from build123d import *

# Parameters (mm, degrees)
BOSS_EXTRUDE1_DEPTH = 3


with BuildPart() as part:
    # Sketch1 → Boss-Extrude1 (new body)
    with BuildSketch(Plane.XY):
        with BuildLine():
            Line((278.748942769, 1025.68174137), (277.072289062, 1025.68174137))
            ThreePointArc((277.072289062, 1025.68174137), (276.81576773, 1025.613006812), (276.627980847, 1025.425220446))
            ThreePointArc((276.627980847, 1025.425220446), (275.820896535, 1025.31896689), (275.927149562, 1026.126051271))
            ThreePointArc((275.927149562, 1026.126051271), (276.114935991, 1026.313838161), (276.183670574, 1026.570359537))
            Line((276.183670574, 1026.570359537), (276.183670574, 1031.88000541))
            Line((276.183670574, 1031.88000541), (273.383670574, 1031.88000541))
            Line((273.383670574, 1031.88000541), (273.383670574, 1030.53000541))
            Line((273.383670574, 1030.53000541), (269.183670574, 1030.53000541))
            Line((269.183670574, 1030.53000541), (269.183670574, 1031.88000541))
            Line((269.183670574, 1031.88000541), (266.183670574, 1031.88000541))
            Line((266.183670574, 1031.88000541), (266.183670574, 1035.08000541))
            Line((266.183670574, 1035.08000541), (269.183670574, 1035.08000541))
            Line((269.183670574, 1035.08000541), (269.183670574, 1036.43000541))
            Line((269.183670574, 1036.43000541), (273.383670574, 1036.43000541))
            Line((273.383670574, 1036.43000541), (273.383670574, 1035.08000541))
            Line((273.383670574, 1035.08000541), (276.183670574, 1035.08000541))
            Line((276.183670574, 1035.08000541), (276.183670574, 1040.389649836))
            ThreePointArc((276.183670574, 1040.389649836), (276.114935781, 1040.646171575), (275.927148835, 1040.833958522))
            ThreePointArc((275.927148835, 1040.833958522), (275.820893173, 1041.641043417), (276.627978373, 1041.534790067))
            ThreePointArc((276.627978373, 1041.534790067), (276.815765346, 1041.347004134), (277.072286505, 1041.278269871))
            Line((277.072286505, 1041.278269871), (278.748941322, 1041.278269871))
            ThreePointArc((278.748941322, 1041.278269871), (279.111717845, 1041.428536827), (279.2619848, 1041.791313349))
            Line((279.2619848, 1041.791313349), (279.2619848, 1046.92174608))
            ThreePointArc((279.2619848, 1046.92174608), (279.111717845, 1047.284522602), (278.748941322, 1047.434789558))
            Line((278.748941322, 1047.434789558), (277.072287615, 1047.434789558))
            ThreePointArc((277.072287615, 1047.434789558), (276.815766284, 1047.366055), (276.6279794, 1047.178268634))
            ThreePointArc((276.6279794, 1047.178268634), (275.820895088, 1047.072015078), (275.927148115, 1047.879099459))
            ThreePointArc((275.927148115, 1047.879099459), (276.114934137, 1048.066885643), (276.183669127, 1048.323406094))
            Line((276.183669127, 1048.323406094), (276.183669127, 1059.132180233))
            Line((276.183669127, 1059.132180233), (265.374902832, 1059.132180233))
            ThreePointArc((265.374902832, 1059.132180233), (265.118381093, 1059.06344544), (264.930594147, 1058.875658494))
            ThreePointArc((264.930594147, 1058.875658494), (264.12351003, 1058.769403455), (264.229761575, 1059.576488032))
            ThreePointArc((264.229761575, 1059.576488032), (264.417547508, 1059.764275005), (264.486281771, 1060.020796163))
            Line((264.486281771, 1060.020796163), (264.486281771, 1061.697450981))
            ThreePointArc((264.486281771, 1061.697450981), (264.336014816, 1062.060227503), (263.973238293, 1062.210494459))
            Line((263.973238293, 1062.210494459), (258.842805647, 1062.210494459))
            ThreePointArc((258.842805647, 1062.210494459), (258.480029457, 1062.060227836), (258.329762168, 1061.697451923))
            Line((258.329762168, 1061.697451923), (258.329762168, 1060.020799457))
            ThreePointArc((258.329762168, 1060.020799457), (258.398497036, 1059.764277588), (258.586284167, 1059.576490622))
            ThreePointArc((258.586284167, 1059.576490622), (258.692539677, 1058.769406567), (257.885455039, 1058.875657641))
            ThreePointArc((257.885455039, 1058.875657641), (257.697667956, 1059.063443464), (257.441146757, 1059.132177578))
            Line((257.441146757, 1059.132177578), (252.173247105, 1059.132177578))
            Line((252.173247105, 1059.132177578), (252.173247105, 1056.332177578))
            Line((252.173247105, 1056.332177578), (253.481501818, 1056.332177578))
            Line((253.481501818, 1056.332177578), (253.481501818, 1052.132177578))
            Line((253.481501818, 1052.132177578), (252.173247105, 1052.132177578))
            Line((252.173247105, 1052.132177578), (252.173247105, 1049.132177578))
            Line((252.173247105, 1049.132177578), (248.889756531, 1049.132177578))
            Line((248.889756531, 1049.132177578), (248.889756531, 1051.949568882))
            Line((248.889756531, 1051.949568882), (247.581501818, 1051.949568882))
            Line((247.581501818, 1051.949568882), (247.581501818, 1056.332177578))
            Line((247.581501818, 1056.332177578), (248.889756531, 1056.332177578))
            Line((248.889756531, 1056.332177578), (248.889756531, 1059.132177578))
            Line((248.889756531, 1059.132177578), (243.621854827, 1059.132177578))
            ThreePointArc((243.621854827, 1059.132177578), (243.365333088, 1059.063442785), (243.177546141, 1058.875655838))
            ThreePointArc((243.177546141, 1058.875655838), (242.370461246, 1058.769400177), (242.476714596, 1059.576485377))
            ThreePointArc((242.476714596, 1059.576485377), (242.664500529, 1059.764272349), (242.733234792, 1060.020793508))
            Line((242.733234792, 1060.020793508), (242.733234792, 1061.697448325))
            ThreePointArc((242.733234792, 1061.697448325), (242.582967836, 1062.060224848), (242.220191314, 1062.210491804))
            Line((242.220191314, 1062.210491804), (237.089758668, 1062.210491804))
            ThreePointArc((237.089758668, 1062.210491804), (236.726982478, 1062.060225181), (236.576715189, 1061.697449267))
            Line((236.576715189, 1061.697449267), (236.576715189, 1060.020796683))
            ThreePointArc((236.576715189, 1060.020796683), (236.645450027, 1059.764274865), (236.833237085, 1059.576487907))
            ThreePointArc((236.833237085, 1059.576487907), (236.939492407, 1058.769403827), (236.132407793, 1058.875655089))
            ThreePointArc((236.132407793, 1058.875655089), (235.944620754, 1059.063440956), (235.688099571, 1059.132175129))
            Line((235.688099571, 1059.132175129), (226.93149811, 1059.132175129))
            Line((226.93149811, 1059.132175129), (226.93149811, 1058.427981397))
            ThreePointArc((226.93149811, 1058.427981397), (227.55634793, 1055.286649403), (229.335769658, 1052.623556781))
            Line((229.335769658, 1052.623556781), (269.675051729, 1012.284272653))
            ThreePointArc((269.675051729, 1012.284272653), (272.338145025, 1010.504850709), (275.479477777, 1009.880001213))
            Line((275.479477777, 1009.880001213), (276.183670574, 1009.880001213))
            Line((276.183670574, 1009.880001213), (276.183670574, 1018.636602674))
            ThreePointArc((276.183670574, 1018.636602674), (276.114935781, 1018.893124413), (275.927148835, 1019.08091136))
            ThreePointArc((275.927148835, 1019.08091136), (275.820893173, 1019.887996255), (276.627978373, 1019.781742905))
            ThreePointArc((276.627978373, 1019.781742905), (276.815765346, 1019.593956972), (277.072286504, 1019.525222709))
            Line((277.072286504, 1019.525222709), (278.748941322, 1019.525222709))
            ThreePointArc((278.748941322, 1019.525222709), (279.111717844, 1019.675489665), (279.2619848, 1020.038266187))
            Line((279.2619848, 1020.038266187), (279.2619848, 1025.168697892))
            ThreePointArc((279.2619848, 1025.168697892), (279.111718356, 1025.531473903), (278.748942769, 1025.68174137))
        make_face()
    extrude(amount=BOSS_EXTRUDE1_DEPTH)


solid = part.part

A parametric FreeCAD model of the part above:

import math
import FreeCAD as App
import Part
import Sketcher
from FreeCAD import Vector

doc = App.newDocument("Part")
body = doc.addObject("PartDesign::Body", "Body")

sketch1 = doc.addObject("Sketcher::SketchObject", "Sketch")
body.addObject(sketch1)
sketch1.AttachmentSupport = (doc.XY_Plane, [""])
sketch1.MapMode = "FlatFace"
sketch1.addGeometry([
    Part.LineSegment(Vector(278.748943, 1025.681741, 0), Vector(277.072289, 1025.681741, 0)),
    Part.ArcOfCircle(Part.Circle(Vector(277.072289, 1025.168698, 0), Vector(0, 0, 1), 0.513043), math.radians(90), math.radians(149.999895)),
    Part.ArcOfCircle(Part.Circle(Vector(276.183673, 1025.681744, 0), Vector(0, 0, 1), 0.513043), math.radians(120.000211), math.radians(329.999826)),
    Part.ArcOfCircle(Part.Circle(Vector(275.670627, 1026.57036, 0), Vector(0, 0, 1), 0.513043), math.radians(-59.999906), math.radians(0)),
    Part.LineSegment(Vector(276.183671, 1026.57036, 0), Vector(276.183671, 1031.880005, 0)),
    Part.LineSegment(Vector(276.183671, 1031.880005, 0), Vector(273.383671, 1031.880005, 0)),
    Part.LineSegment(Vector(273.383671, 1031.880005, 0), Vector(273.383671, 1030.530005, 0)),
    Part.LineSegment(Vector(273.383671, 1030.530005, 0), Vector(269.183671, 1030.530005, 0)),
    Part.LineSegment(Vector(269.183671, 1030.530005, 0), Vector(269.183671, 1031.880005, 0)),
    Part.LineSegment(Vector(269.183671, 1031.880005, 0), Vector(266.183671, 1031.880005, 0)),
    Part.LineSegment(Vector(266.183671, 1031.880005, 0), Vector(266.183671, 1035.080005, 0)),
    Part.LineSegment(Vector(266.183671, 1035.080005, 0), Vector(269.183671, 1035.080005, 0)),
    Part.LineSegment(Vector(269.183671, 1035.080005, 0), Vector(269.183671, 1036.430005, 0)),
    Part.LineSegment(Vector(269.183671, 1036.430005, 0), Vector(273.383671, 1036.430005, 0)),
    Part.LineSegment(Vector(273.383671, 1036.430005, 0), Vector(273.383671, 1035.080005, 0)),
    Part.LineSegment(Vector(273.383671, 1035.080005, 0), Vector(276.183671, 1035.080005, 0)),
    Part.LineSegment(Vector(276.183671, 1035.080005, 0), Vector(276.183671, 1040.38965, 0)),
    Part.ArcOfCircle(Part.Circle(Vector(275.670627, 1040.38965, 0), Vector(0, 0, 1), 0.513043), math.radians(0), math.radians(60)),
    Part.ArcOfCircle(Part.Circle(Vector(276.18367, 1041.278267, 0), Vector(0, 0, 1), 0.513043), math.radians(30.000118), math.radians(240.000046)),
    Part.ArcOfCircle(Part.Circle(Vector(277.072286, 1041.791313, 0), Vector(0, 0, 1), 0.513043), math.radians(-149.999801), math.radians(-89.999962)),
    Part.LineSegment(Vector(277.072287, 1041.27827, 0), Vector(278.748941, 1041.27827, 0)),
    Part.ArcOfCircle(Part.Circle(Vector(278.748941, 1041.791313, 0), Vector(0, 0, 1), 0.513043), math.radians(-90), math.radians(0)),
    Part.LineSegment(Vector(279.261985, 1041.791313, 0), Vector(279.261985, 1046.921746, 0)),
    Part.ArcOfCircle(Part.Circle(Vector(278.748941, 1046.921746, 0), Vector(0, 0, 1), 0.513043), math.radians(0), math.radians(90)),
    Part.LineSegment(Vector(278.748941, 1047.43479, 0), Vector(277.072288, 1047.43479, 0)),
    Part.ArcOfCircle(Part.Circle(Vector(277.072288, 1046.921746, 0), Vector(0, 0, 1), 0.513043), math.radians(90), math.radians(149.999895)),
    Part.ArcOfCircle(Part.Circle(Vector(276.183671, 1047.434792, 0), Vector(0, 0, 1), 0.513043), math.radians(120.000211), math.radians(329.999826)),
    Part.ArcOfCircle(Part.Circle(Vector(275.670626, 1048.323408, 0), Vector(0, 0, 1), 0.513043), math.radians(-59.999906), math.radians(-0.000182)),
    Part.LineSegment(Vector(276.183669, 1048.323406, 0), Vector(276.183669, 1059.13218, 0)),
    Part.LineSegment(Vector(276.183669, 1059.13218, 0), Vector(265.374903, 1059.13218, 0)),
    Part.ArcOfCircle(Part.Circle(Vector(265.374903, 1058.619137, 0), Vector(0, 0, 1), 0.513043), math.radians(90), math.radians(150)),
    Part.ArcOfCircle(Part.Circle(Vector(264.486286, 1059.132181, 0), Vector(0, 0, 1), 0.513043), math.radians(120.000316), math.radians(329.999932)),
    Part.ArcOfCircle(Part.Circle(Vector(263.973238, 1060.020796, 0), Vector(0, 0, 1), 0.513043), math.radians(-59.999801), math.radians(0.000038)),
    Part.LineSegment(Vector(264.486282, 1060.020796, 0), Vector(264.486282, 1061.697451, 0)),
    Part.ArcOfCircle(Part.Circle(Vector(263.973238, 1061.697451, 0), Vector(0, 0, 1), 0.513043), math.radians(0), math.radians(90)),
    Part.LineSegment(Vector(263.973238, 1062.210494, 0), Vector(258.842806, 1062.210494, 0)),
    Part.ArcOfCircle(Part.Circle(Vector(258.842806, 1061.697451, 0), Vector(0, 0, 1), 0.513043), math.radians(90), math.radians(179.999895)),
    Part.LineSegment(Vector(258.329762, 1061.697452, 0), Vector(258.329762, 1060.020799, 0)),
    Part.ArcOfCircle(Part.Circle(Vector(258.842806, 1060.020799, 0), Vector(0, 0, 1), 0.513043), math.radians(180), math.radians(240.000034)),
    Part.ArcOfCircle(Part.Circle(Vector(258.329762, 1059.132182, 0), Vector(0, 0, 1), 0.513043), math.radians(-149.99965), math.radians(59.999965)),
    Part.ArcOfCircle(Part.Circle(Vector(257.441147, 1058.619134, 0), Vector(0, 0, 1), 0.513043), math.radians(30.000233), math.radians(90.000071)),
    Part.LineSegment(Vector(257.441147, 1059.132178, 0), Vector(252.173247, 1059.132178, 0)),
    Part.LineSegment(Vector(252.173247, 1059.132178, 0), Vector(252.173247, 1056.332178, 0)),
    Part.LineSegment(Vector(252.173247, 1056.332178, 0), Vector(253.481502, 1056.332178, 0)),
    Part.LineSegment(Vector(253.481502, 1056.332178, 0), Vector(253.481502, 1052.132178, 0)),
    Part.LineSegment(Vector(253.481502, 1052.132178, 0), Vector(252.173247, 1052.132178, 0)),
    Part.LineSegment(Vector(252.173247, 1052.132178, 0), Vector(252.173247, 1049.132178, 0)),
    Part.LineSegment(Vector(252.173247, 1049.132178, 0), Vector(248.889757, 1049.132178, 0)),
    Part.LineSegment(Vector(248.889757, 1049.132178, 0), Vector(248.889757, 1051.949569, 0)),
    Part.LineSegment(Vector(248.889757, 1051.949569, 0), Vector(247.581502, 1051.949569, 0)),
    Part.LineSegment(Vector(247.581502, 1051.949569, 0), Vector(247.581502, 1056.332178, 0)),
    Part.LineSegment(Vector(247.581502, 1056.332178, 0), Vector(248.889757, 1056.332178, 0)),
    Part.LineSegment(Vector(248.889757, 1056.332178, 0), Vector(248.889757, 1059.132178, 0)),
    Part.LineSegment(Vector(248.889757, 1059.132178, 0), Vector(243.621855, 1059.132178, 0)),
    Part.ArcOfCircle(Part.Circle(Vector(243.621855, 1058.619134, 0), Vector(0, 0, 1), 0.513043), math.radians(90), math.radians(150)),
    Part.ArcOfCircle(Part.Circle(Vector(242.733237, 1059.132177, 0), Vector(0, 0, 1), 0.513043), math.radians(120.000118), math.radians(330.000046)),
    Part.ArcOfCircle(Part.Circle(Vector(242.220191, 1060.020793, 0), Vector(0, 0, 1), 0.513043), math.radians(-59.999801), math.radians(0.000038)),
    Part.LineSegment(Vector(242.733235, 1060.020794, 0), Vector(242.733235, 1061.697448, 0)),
    Part.ArcOfCircle(Part.Circle(Vector(242.220191, 1061.697448, 0), Vector(0, 0, 1), 0.513043), math.radians(0), math.radians(90)),
    Part.LineSegment(Vector(242.220191, 1062.210492, 0), Vector(237.089759, 1062.210492, 0)),
    Part.ArcOfCircle(Part.Circle(Vector(237.089759, 1061.697448, 0), Vector(0, 0, 1), 0.513043), math.radians(90), math.radians(179.999895)),
    Part.LineSegment(Vector(236.576715, 1061.697449, 0), Vector(236.576715, 1060.020797, 0)),
    Part.ArcOfCircle(Part.Circle(Vector(237.089759, 1060.020797, 0), Vector(0, 0, 1), 0.513043), math.radians(180), math.radians(240.00002)),
    Part.ArcOfCircle(Part.Circle(Vector(236.576715, 1059.132179, 0), Vector(0, 0, 1), 0.513043), math.radians(-149.999664), math.radians(59.999952)),
    Part.ArcOfCircle(Part.Circle(Vector(235.6881, 1058.619132, 0), Vector(0, 0, 1), 0.513043), math.radians(30.000219), math.radians(90.000058)),
    Part.LineSegment(Vector(235.6881, 1059.132175, 0), Vector(226.931498, 1059.132175, 0)),
    Part.LineSegment(Vector(226.931498, 1059.132175, 0), Vector(226.931498, 1058.427981, 0)),
    Part.ArcOfCircle(Part.Circle(Vector(235.140194, 1058.427981, 0), Vector(0, 0, 1), 8.208696), math.radians(-180), math.radians(-134.999997)),
    Part.LineSegment(Vector(229.33577, 1052.623557, 0), Vector(269.675052, 1012.284273, 0)),
    Part.ArcOfCircle(Part.Circle(Vector(275.479476, 1018.088697, 0), Vector(0, 0, 1), 8.208696), math.radians(-135.000001), math.radians(-89.999989)),
    Part.LineSegment(Vector(275.479478, 1009.880001, 0), Vector(276.183671, 1009.880001, 0)),
    Part.LineSegment(Vector(276.183671, 1009.880001, 0), Vector(276.183671, 1018.636603, 0)),
    Part.ArcOfCircle(Part.Circle(Vector(275.670627, 1018.636603, 0), Vector(0, 0, 1), 0.513043), math.radians(0), math.radians(60)),
    Part.ArcOfCircle(Part.Circle(Vector(276.18367, 1019.52522, 0), Vector(0, 0, 1), 0.513043), math.radians(30.000118), math.radians(240.000046)),
    Part.ArcOfCircle(Part.Circle(Vector(277.072286, 1020.038266, 0), Vector(0, 0, 1), 0.513043), math.radians(-149.999801), math.radians(-89.999962)),
    Part.LineSegment(Vector(277.072287, 1019.525223, 0), Vector(278.748941, 1019.525223, 0)),
    Part.ArcOfCircle(Part.Circle(Vector(278.748941, 1020.038266, 0), Vector(0, 0, 1), 0.513043), math.radians(-90), math.radians(0)),
    Part.LineSegment(Vector(279.261985, 1020.038266, 0), Vector(279.261985, 1025.168698, 0)),
    Part.ArcOfCircle(Part.Circle(Vector(278.748941, 1025.168698, 0), Vector(0, 0, 1), 0.513043), math.radians(0), math.radians(89.999839)),
], False)
sketch1.addConstraint([
    Sketcher.Constraint("Coincident", 0, 2, 1, 1),
    Sketcher.Constraint("Coincident", 1, 2, 2, 2),
    Sketcher.Constraint("Coincident", 2, 1, 3, 1),
    Sketcher.Constraint("Coincident", 3, 2, 4, 1),
    Sketcher.Constraint("Coincident", 4, 2, 5, 1),
    Sketcher.Constraint("Coincident", 5, 2, 6, 1),
    Sketcher.Constraint("Coincident", 6, 2, 7, 1),
    Sketcher.Constraint("Coincident", 7, 2, 8, 1),
    Sketcher.Constraint("Coincident", 8, 2, 9, 1),
    Sketcher.Constraint("Coincident", 9, 2, 10, 1),
    Sketcher.Constraint("Coincident", 10, 2, 11, 1),
    Sketcher.Constraint("Coincident", 11, 2, 12, 1),
    Sketcher.Constraint("Coincident", 12, 2, 13, 1),
    Sketcher.Constraint("Coincident", 13, 2, 14, 1),
    Sketcher.Constraint("Coincident", 14, 2, 15, 1),
    Sketcher.Constraint("Coincident", 15, 2, 16, 1),
    Sketcher.Constraint("Coincident", 16, 2, 17, 1),
    Sketcher.Constraint("Coincident", 17, 2, 18, 2),
    Sketcher.Constraint("Coincident", 18, 1, 19, 1),
    Sketcher.Constraint("Coincident", 19, 2, 20, 1),
    Sketcher.Constraint("Coincident", 20, 2, 21, 1),
    Sketcher.Constraint("Coincident", 21, 2, 22, 1),
    Sketcher.Constraint("Coincident", 22, 2, 23, 1),
    Sketcher.Constraint("Coincident", 23, 2, 24, 1),
    Sketcher.Constraint("Coincident", 24, 2, 25, 1),
    Sketcher.Constraint("Coincident", 25, 2, 26, 2),
    Sketcher.Constraint("Coincident", 26, 1, 27, 1),
    Sketcher.Constraint("Coincident", 27, 2, 28, 1),
    Sketcher.Constraint("Coincident", 28, 2, 29, 1),
    Sketcher.Constraint("Coincident", 29, 2, 30, 1),
    Sketcher.Constraint("Coincident", 30, 2, 31, 2),
    Sketcher.Constraint("Coincident", 31, 1, 32, 1),
    Sketcher.Constraint("Coincident", 32, 2, 33, 1),
    Sketcher.Constraint("Coincident", 33, 2, 34, 1),
    Sketcher.Constraint("Coincident", 34, 2, 35, 1),
    Sketcher.Constraint("Coincident", 35, 2, 36, 1),
    Sketcher.Constraint("Coincident", 36, 2, 37, 1),
    Sketcher.Constraint("Coincident", 37, 2, 38, 1),
    Sketcher.Constraint("Coincident", 38, 2, 39, 2),
    Sketcher.Constraint("Coincident", 39, 1, 40, 1),
    Sketcher.Constraint("Coincident", 40, 2, 41, 1),
    Sketcher.Constraint("Coincident", 41, 2, 42, 1),
    Sketcher.Constraint("Coincident", 42, 2, 43, 1),
    Sketcher.Constraint("Coincident", 43, 2, 44, 1),
    Sketcher.Constraint("Coincident", 44, 2, 45, 1),
    Sketcher.Constraint("Coincident", 45, 2, 46, 1),
    Sketcher.Constraint("Coincident", 46, 2, 47, 1),
    Sketcher.Constraint("Coincident", 47, 2, 48, 1),
    Sketcher.Constraint("Coincident", 48, 2, 49, 1),
    Sketcher.Constraint("Coincident", 49, 2, 50, 1),
    Sketcher.Constraint("Coincident", 50, 2, 51, 1),
    Sketcher.Constraint("Coincident", 51, 2, 52, 1),
    Sketcher.Constraint("Coincident", 52, 2, 53, 1),
    Sketcher.Constraint("Coincident", 53, 2, 54, 1),
    Sketcher.Constraint("Coincident", 54, 2, 55, 2),
    Sketcher.Constraint("Coincident", 55, 1, 56, 1),
    Sketcher.Constraint("Coincident", 56, 2, 57, 1),
    Sketcher.Constraint("Coincident", 57, 2, 58, 1),
    Sketcher.Constraint("Coincident", 58, 2, 59, 1),
    Sketcher.Constraint("Coincident", 59, 2, 60, 1),
    Sketcher.Constraint("Coincident", 60, 2, 61, 1),
    Sketcher.Constraint("Coincident", 61, 2, 62, 1),
    Sketcher.Constraint("Coincident", 62, 2, 63, 2),
    Sketcher.Constraint("Coincident", 63, 1, 64, 1),
    Sketcher.Constraint("Coincident", 64, 2, 65, 1),
    Sketcher.Constraint("Coincident", 65, 2, 66, 1),
    Sketcher.Constraint("Coincident", 66, 2, 67, 1),
    Sketcher.Constraint("Coincident", 67, 2, 68, 1),
    Sketcher.Constraint("Coincident", 68, 2, 69, 1),
    Sketcher.Constraint("Coincident", 69, 2, 70, 1),
    Sketcher.Constraint("Coincident", 70, 2, 71, 1),
    Sketcher.Constraint("Coincident", 71, 2, 72, 1),
    Sketcher.Constraint("Coincident", 72, 2, 73, 2),
    Sketcher.Constraint("Coincident", 73, 1, 74, 1),
    Sketcher.Constraint("Coincident", 74, 2, 75, 1),
    Sketcher.Constraint("Coincident", 75, 2, 76, 1),
    Sketcher.Constraint("Coincident", 76, 2, 77, 1),
    Sketcher.Constraint("Coincident", 77, 2, 78, 1),
    Sketcher.Constraint("Coincident", 78, 2, 0, 1),
    Sketcher.Constraint("Horizontal", 0),
    Sketcher.Constraint("Vertical", 4),
    Sketcher.Constraint("Horizontal", 5),
    Sketcher.Constraint("Vertical", 6),
    Sketcher.Constraint("Horizontal", 7),
    Sketcher.Constraint("Vertical", 8),
    Sketcher.Constraint("Horizontal", 9),
    Sketcher.Constraint("Vertical", 10),
    Sketcher.Constraint("Horizontal", 11),
    Sketcher.Constraint("Vertical", 12),
    Sketcher.Constraint("Horizontal", 13),
    Sketcher.Constraint("Vertical", 14),
    Sketcher.Constraint("Horizontal", 15),
    Sketcher.Constraint("Vertical", 16),
    Sketcher.Constraint("Horizontal", 20),
    Sketcher.Constraint("Vertical", 22),
    Sketcher.Constraint("Horizontal", 24),
    Sketcher.Constraint("Vertical", 28),
    Sketcher.Constraint("Horizontal", 29),
    Sketcher.Constraint("Vertical", 33),
    Sketcher.Constraint("Horizontal", 35),
    Sketcher.Constraint("Vertical", 37),
    Sketcher.Constraint("Horizontal", 41),
    Sketcher.Constraint("Vertical", 42),
    Sketcher.Constraint("Horizontal", 43),
    Sketcher.Constraint("Vertical", 44),
    Sketcher.Constraint("Horizontal", 45),
    Sketcher.Constraint("Vertical", 46),
    Sketcher.Constraint("Horizontal", 47),
    Sketcher.Constraint("Vertical", 48),
    Sketcher.Constraint("Horizontal", 49),
    Sketcher.Constraint("Vertical", 50),
    Sketcher.Constraint("Horizontal", 51),
    Sketcher.Constraint("Vertical", 52),
    Sketcher.Constraint("Horizontal", 53),
    Sketcher.Constraint("Vertical", 57),
    Sketcher.Constraint("Horizontal", 59),
    Sketcher.Constraint("Vertical", 61),
    Sketcher.Constraint("Horizontal", 65),
    Sketcher.Constraint("Vertical", 66),
    Sketcher.Constraint("Horizontal", 70),
    Sketcher.Constraint("Vertical", 71),
    Sketcher.Constraint("Horizontal", 75),
    Sketcher.Constraint("Vertical", 77),
    Sketcher.Constraint("DistanceX", 9, 2, 9, 1, 3.0),
    Sketcher.Constraint("DistanceX", 11, 1, 11, 2, 3.0),
    Sketcher.Constraint("DistanceY", 46, 2, 46, 1, 3.0),
    Sketcher.Constraint("DistanceX", 5, 2, 5, 1, 2.8),
    Sketcher.Constraint("DistanceX", 7, 2, 7, 1, 4.2),
    Sketcher.Constraint("DistanceX", 13, 1, 13, 2, 4.2),
    Sketcher.Constraint("DistanceX", 15, 1, 15, 2, 2.8),
    Sketcher.Constraint("DistanceY", 10, 1, 10, 2, 3.2),
    Sketcher.Constraint("DistanceY", 42, 2, 42, 1, 2.8),
    Sketcher.Constraint("DistanceY", 44, 2, 44, 1, 4.2),
    Sketcher.Constraint("DistanceY", 52, 1, 52, 2, 2.8),
    Sketcher.Constraint("DistanceY", 6, 2, 6, 1, 1.35),
    Sketcher.Constraint("DistanceY", 8, 1, 8, 2, 1.35),
    Sketcher.Constraint("DistanceY", 12, 1, 12, 2, 1.35),
    Sketcher.Constraint("DistanceY", 14, 2, 14, 1, 1.35),
    Sketcher.Constraint("DistanceY", -1, 1, 69, 2, 1009.880001),
    Sketcher.Constraint("DistanceX", 41, 2, 41, 1, 5.2679),
    Sketcher.Constraint("DistanceX", 53, 2, 53, 1, 5.267902),
    Sketcher.Constraint("DistanceX", 65, 2, 65, 1, 8.756601),
    Sketcher.Constraint("DistanceY", 71, 1, 71, 2, 8.756601),
    Sketcher.Constraint("Radius", 1, 0.513043),
    Sketcher.Constraint("Radius", 2, 0.513043),
    Sketcher.Constraint("Radius", 3, 0.513043),
    Sketcher.Constraint("Radius", 17, 0.513043),
    Sketcher.Constraint("Radius", 18, 0.513043),
    Sketcher.Constraint("Radius", 19, 0.513043),
    Sketcher.Constraint("Radius", 21, 0.513043),
    Sketcher.Constraint("Radius", 23, 0.513043),
    Sketcher.Constraint("Radius", 25, 0.513043),
    Sketcher.Constraint("Radius", 26, 0.513043),
    Sketcher.Constraint("Radius", 27, 0.513043),
    Sketcher.Constraint("Radius", 30, 0.513043),
    Sketcher.Constraint("Radius", 31, 0.513043),
    Sketcher.Constraint("Radius", 32, 0.513043),
    Sketcher.Constraint("Radius", 34, 0.513043),
    Sketcher.Constraint("Radius", 36, 0.513043),
    Sketcher.Constraint("Radius", 38, 0.513043),
    Sketcher.Constraint("Radius", 39, 0.513043),
    Sketcher.Constraint("Radius", 40, 0.513043),
    Sketcher.Constraint("Radius", 54, 0.513043),
    Sketcher.Constraint("Radius", 55, 0.513043),
    Sketcher.Constraint("Radius", 56, 0.513043),
    Sketcher.Constraint("Radius", 58, 0.513043),
    Sketcher.Constraint("Radius", 60, 0.513043),
    Sketcher.Constraint("Radius", 62, 0.513043),
    Sketcher.Constraint("Radius", 63, 0.513043),
    Sketcher.Constraint("Radius", 64, 0.513043),
    Sketcher.Constraint("Radius", 67, 8.208696),
    Sketcher.Constraint("Radius", 69, 8.208696),
    Sketcher.Constraint("Radius", 72, 0.513043),
    Sketcher.Constraint("Radius", 73, 0.513043),
    Sketcher.Constraint("Radius", 74, 0.513043),
    Sketcher.Constraint("Radius", 76, 0.513043),
    Sketcher.Constraint("Radius", 78, 0.513043),
    Sketcher.Constraint("DistanceX", 47, 2, 47, 1, 3.283491),
    Sketcher.Constraint("DistanceY", 48, 1, 48, 2, 2.817391),
    Sketcher.Constraint("DistanceY", 50, 1, 50, 2, 4.382609),
    Sketcher.Constraint("DistanceY", 77, 1, 77, 2, 5.130432),
    Sketcher.Constraint("DistanceY", -1, 1, 38, 3, 1060.020799),
    Sketcher.Constraint("DistanceX", -1, 1, 64, 3, 235.6881),
    Sketcher.Constraint("DistanceY", -1, 1, 26, 1, 1047.879099),
    Sketcher.Constraint("DistanceY", -1, 1, 37, 2, 1060.020799),
    Sketcher.Constraint("DistanceX", -1, 1, 43, 2, 253.481502),
    Sketcher.Constraint("DistanceX", -1, 1, 49, 2, 247.581502),
    Sketcher.Constraint("DistanceX", -1, 1, 64, 2, 235.6881),
    Sketcher.Constraint("Distance", 68, 57.048361),
    Sketcher.Constraint("DistanceX", 0, 2, 0, 1, 1.676654),
    Sketcher.Constraint("DistanceX", 20, 1, 20, 2, 1.676655),
    Sketcher.Constraint("DistanceX", 24, 2, 24, 1, 1.676654),
    Sketcher.Constraint("DistanceX", 29, 2, 29, 1, 10.808766),
    Sketcher.Constraint("DistanceX", 35, 2, 35, 1, 5.130433),
    Sketcher.Constraint("DistanceX", 43, 1, 43, 2, 1.308255),
    Sketcher.Constraint("DistanceX", 45, 2, 45, 1, 1.308255),
    Sketcher.Constraint("DistanceX", 51, 1, 51, 2, 1.308255),
    Sketcher.Constraint("DistanceX", 59, 2, 59, 1, 5.130433),
    Sketcher.Constraint("DistanceX", 70, 1, 70, 2, 0.704193),
    Sketcher.Constraint("DistanceX", 75, 1, 75, 2, 1.676655),
    Sketcher.Constraint("DistanceY", 4, 1, 4, 2, 5.309646),
    Sketcher.Constraint("DistanceY", 16, 1, 16, 2, 5.309644),
    Sketcher.Constraint("DistanceY", 22, 1, 22, 2, 5.130433),
    Sketcher.Constraint("DistanceY", 28, 1, 28, 2, 10.808774),
    Sketcher.Constraint("DistanceY", 33, 1, 33, 2, 1.676655),
    Sketcher.Constraint("DistanceY", 37, 2, 37, 1, 1.676652),
    Sketcher.Constraint("DistanceY", 57, 1, 57, 2, 1.676655),
    Sketcher.Constraint("DistanceY", 61, 2, 61, 1, 1.676653),
    Sketcher.Constraint("DistanceY", 66, 2, 66, 1, 0.704194),
    Sketcher.Constraint("DistanceX", -1, 1, 1, 3, 277.072289),
    Sketcher.Constraint("DistanceY", -1, 1, 3, 3, 1026.57036),
    Sketcher.Constraint("DistanceY", -1, 1, 17, 3, 1040.38965),
    Sketcher.Constraint("DistanceX", -1, 1, 18, 3, 276.18367),
    Sketcher.Constraint("DistanceX", -1, 1, 21, 3, 278.748941),
    Sketcher.Constraint("DistanceX", -1, 1, 26, 3, 276.183671),
    Sketcher.Constraint("DistanceY", -1, 1, 26, 3, 1047.434792),
    Sketcher.Constraint("DistanceY", -1, 1, 31, 3, 1059.132181),
    Sketcher.Constraint("DistanceX", -1, 1, 32, 3, 263.973238),
    Sketcher.Constraint("DistanceY", -1, 1, 34, 3, 1061.697451),
    Sketcher.Constraint("DistanceX", -1, 1, 56, 3, 242.220191),
    Sketcher.Constraint("DistanceY", -1, 1, 58, 3, 1061.697448),
    Sketcher.Constraint("DistanceX", -1, 1, 60, 3, 237.089759),
    Sketcher.Constraint("DistanceY", -1, 1, 63, 3, 1059.132179),
    Sketcher.Constraint("DistanceY", -1, 1, 64, 3, 1058.619132),
    Sketcher.Constraint("DistanceY", -1, 1, 67, 3, 1058.427981),
    Sketcher.Constraint("DistanceX", -1, 1, 73, 3, 276.18367),
    Sketcher.Constraint("DistanceY", -1, 1, 73, 3, 1019.52522),
    Sketcher.Constraint("DistanceX", -1, 1, 76, 3, 278.748941),
    Sketcher.Constraint("DistanceX", -1, 1, 0, 2, 277.072289),
    Sketcher.Constraint("DistanceY", -1, 1, 0, 2, 1025.681741),
    Sketcher.Constraint("DistanceX", -1, 1, 1, 2, 276.627981),
    Sketcher.Constraint("DistanceX", -1, 1, 2, 1, 275.92715),
    Sketcher.Constraint("DistanceY", -1, 1, 2, 1, 1026.126051),
    Sketcher.Constraint("DistanceY", -1, 1, 3, 2, 1026.57036),
    Sketcher.Constraint("DistanceX", -1, 1, 17, 2, 275.927149),
    Sketcher.Constraint("DistanceX", -1, 1, 18, 1, 276.627978),
    Sketcher.Constraint("DistanceY", -1, 1, 19, 2, 1041.27827),
    Sketcher.Constraint("DistanceX", -1, 1, 20, 2, 278.748941),
    Sketcher.Constraint("DistanceX", -1, 1, 23, 2, 278.748941),
    Sketcher.Constraint("DistanceY", -1, 1, 23, 2, 1047.43479),
    Sketcher.Constraint("DistanceX", -1, 1, 25, 2, 276.627979),
    Sketcher.Constraint("DistanceX", -1, 1, 27, 2, 276.183669),
    Sketcher.Constraint("DistanceY", -1, 1, 28, 2, 1059.13218),
    Sketcher.Constraint("DistanceY", -1, 1, 30, 2, 1058.875658),
    Sketcher.Constraint("DistanceX", -1, 1, 31, 1, 264.229762),
    Sketcher.Constraint("DistanceY", -1, 1, 31, 1, 1059.576488),
    Sketcher.Constraint("DistanceY", -1, 1, 33, 2, 1061.697451),
    Sketcher.Constraint("DistanceX", -1, 1, 34, 2, 263.973238),
    Sketcher.Constraint("DistanceY", -1, 1, 38, 2, 1059.576491),
    Sketcher.Constraint("DistanceY", -1, 1, 48, 2, 1051.949569),
    Sketcher.Constraint("DistanceY", -1, 1, 57, 2, 1061.697448),
    Sketcher.Constraint("DistanceX", -1, 1, 58, 2, 242.220191),
    Sketcher.Constraint("DistanceY", -1, 1, 60, 2, 1061.697449),
    Sketcher.Constraint("DistanceX", -1, 1, 67, 2, 229.33577),
    Sketcher.Constraint("DistanceX", -1, 1, 68, 2, 269.675052),
    Sketcher.Constraint("DistanceX", -1, 1, 70, 2, 276.183671),
    Sketcher.Constraint("DistanceX", -1, 1, 72, 2, 275.927149),
    Sketcher.Constraint("DistanceX", -1, 1, 73, 1, 276.627978),
    Sketcher.Constraint("DistanceX", -1, 1, 75, 2, 278.748941),
    Sketcher.Constraint("DistanceX", -1, 1, 36, 3, 258.842806),
    Sketcher.Constraint("DistanceX", -1, 1, 39, 3, 258.329762),
    Sketcher.Constraint("DistanceX", -1, 1, 54, 3, 243.621855),
    Sketcher.Constraint("DistanceX", -1, 1, 55, 3, 242.733237),
    Sketcher.Constraint("DistanceX", -1, 1, 74, 3, 277.072286),
    Sketcher.Constraint("DistanceY", -1, 1, 21, 2, 1041.791313),
    Sketcher.Constraint("DistanceX", -1, 1, 39, 1, 257.885455),
    Sketcher.Constraint("DistanceX", -1, 1, 54, 2, 243.177546),
    Sketcher.Constraint("DistanceX", -1, 1, 55, 1, 242.476715),
    Sketcher.Constraint("DistanceX", -1, 1, 62, 2, 236.833237),
    Sketcher.Constraint("DistanceX", -1, 1, 63, 1, 236.132408),
    Sketcher.Constraint("DistanceY", -1, 1, 76, 2, 1020.038266),
])
pad1 = doc.addObject("PartDesign::Pad", "Pad")
body.addObject(pad1)
pad1.Profile = sketch1
pad1.Length = 3

doc.recompute()
